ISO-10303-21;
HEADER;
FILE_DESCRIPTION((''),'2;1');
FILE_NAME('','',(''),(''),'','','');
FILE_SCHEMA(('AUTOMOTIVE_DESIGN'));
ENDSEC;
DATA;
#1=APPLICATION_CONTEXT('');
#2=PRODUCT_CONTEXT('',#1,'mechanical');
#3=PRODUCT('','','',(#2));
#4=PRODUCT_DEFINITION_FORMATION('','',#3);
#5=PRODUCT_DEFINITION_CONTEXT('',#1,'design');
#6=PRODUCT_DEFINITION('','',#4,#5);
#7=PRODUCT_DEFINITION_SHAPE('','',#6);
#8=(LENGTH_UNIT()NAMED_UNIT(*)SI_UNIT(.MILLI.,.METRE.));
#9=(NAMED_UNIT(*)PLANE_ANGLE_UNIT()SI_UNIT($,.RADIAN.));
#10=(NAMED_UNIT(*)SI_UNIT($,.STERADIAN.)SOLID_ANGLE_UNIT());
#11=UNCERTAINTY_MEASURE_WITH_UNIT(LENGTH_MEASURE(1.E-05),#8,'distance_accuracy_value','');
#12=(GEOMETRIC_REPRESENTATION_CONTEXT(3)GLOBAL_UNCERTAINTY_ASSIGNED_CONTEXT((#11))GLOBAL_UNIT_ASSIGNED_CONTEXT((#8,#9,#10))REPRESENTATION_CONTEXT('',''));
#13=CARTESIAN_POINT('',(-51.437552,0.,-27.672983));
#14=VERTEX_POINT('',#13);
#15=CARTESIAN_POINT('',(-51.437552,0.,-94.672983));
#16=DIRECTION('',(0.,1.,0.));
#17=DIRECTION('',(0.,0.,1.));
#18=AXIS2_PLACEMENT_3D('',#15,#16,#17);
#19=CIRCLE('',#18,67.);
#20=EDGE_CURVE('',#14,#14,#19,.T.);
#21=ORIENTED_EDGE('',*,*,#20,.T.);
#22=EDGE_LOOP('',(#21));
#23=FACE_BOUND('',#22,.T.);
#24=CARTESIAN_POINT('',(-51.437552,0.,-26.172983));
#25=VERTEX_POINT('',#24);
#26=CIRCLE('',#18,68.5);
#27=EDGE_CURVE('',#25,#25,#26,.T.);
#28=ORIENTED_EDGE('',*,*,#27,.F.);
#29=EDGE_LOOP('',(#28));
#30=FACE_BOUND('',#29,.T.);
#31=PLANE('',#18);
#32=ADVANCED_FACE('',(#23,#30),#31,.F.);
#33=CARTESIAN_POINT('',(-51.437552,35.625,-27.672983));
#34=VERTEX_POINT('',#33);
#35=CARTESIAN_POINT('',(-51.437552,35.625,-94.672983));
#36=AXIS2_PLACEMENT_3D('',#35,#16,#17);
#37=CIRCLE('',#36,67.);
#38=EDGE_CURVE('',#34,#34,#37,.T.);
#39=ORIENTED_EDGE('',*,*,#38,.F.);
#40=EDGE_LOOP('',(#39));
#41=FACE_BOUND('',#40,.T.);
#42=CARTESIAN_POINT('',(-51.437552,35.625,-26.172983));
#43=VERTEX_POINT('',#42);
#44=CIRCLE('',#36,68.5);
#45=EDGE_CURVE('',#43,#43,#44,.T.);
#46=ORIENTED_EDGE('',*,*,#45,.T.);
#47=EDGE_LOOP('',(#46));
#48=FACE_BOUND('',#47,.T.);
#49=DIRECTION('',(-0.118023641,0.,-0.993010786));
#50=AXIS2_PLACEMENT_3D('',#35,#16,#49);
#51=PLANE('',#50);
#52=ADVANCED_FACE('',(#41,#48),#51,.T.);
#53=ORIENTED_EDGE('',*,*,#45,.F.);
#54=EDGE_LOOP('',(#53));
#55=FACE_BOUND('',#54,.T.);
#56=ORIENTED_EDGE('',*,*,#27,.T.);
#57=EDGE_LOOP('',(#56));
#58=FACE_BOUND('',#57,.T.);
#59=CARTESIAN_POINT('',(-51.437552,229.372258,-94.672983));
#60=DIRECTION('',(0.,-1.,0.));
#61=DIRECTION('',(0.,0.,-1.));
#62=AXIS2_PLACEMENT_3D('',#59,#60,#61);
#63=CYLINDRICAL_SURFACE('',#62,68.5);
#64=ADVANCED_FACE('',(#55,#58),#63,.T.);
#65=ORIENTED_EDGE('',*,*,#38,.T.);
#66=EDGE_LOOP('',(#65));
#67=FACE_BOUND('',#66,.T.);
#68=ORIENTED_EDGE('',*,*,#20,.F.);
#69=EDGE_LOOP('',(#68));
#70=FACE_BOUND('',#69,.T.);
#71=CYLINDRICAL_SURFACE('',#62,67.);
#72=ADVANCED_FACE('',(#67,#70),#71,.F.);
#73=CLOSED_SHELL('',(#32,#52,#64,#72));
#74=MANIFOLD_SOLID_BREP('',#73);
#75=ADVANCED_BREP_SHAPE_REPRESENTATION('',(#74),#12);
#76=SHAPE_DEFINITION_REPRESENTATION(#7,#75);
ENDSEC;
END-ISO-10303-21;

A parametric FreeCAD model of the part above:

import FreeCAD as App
import Part
import Sketcher

V = App.Vector
Q = App.Units.Quantity

doc = App.newDocument("Part")
params = doc.addObject("Spreadsheet::Sheet", "Params")
for row, (alias, value) in enumerate([
    ("sketch1_diameter", "137 mm"),
    ("sketch1_diameter2", "134 mm"),
    ("pad1_length", "35.625 mm"),
], start=1):
    params.set(f"A{row}", alias)
    params.set(f"B{row}", "=" + value)
    params.setAlias(f"B{row}", alias)

body = doc.addObject("PartDesign::Body", "Body")

# Sketch on XZ plane
sketch1 = body.newObject("Sketcher::SketchObject", "Sketch")
sketch1.AttachmentSupport = (doc.getObject("XZ_Plane"), [""])
sketch1.MapMode = "FlatFace"
sketch1.addGeometry(Part.Circle(V(-51.437552, -94.672983, 0), V(0, 0, 1), 68.5), False)
sketch1.addGeometry(Part.Circle(V(-51.437552, -94.672983, 0), V(0, 0, 1), 67), False)
sketch1.addConstraint(Sketcher.Constraint("Coincident", 1, 3, 0, 3))
sketch1.addConstraint(Sketcher.Constraint("Diameter", 0, Q("137 mm")))
sketch1.addConstraint(Sketcher.Constraint("Diameter", 1, Q("134 mm")))
sketch1.addConstraint(Sketcher.Constraint("DistanceX", 0, 3, -1, 1, Q("51.437552 mm")))
sketch1.addConstraint(Sketcher.Constraint("DistanceY", 0, 3, -1, 1, Q("94.672983 mm")))
sketch1.setExpression("Constraints[1]", "Params.sketch1_diameter")
sketch1.setExpression("Constraints[2]", "Params.sketch1_diameter2")
pad1 = body.newObject("PartDesign::Pad", "Pad")
pad1.Profile = sketch1
pad1.setExpression("Length", "Params.pad1_length")
pad1.Reversed = True

doc.recompute()
